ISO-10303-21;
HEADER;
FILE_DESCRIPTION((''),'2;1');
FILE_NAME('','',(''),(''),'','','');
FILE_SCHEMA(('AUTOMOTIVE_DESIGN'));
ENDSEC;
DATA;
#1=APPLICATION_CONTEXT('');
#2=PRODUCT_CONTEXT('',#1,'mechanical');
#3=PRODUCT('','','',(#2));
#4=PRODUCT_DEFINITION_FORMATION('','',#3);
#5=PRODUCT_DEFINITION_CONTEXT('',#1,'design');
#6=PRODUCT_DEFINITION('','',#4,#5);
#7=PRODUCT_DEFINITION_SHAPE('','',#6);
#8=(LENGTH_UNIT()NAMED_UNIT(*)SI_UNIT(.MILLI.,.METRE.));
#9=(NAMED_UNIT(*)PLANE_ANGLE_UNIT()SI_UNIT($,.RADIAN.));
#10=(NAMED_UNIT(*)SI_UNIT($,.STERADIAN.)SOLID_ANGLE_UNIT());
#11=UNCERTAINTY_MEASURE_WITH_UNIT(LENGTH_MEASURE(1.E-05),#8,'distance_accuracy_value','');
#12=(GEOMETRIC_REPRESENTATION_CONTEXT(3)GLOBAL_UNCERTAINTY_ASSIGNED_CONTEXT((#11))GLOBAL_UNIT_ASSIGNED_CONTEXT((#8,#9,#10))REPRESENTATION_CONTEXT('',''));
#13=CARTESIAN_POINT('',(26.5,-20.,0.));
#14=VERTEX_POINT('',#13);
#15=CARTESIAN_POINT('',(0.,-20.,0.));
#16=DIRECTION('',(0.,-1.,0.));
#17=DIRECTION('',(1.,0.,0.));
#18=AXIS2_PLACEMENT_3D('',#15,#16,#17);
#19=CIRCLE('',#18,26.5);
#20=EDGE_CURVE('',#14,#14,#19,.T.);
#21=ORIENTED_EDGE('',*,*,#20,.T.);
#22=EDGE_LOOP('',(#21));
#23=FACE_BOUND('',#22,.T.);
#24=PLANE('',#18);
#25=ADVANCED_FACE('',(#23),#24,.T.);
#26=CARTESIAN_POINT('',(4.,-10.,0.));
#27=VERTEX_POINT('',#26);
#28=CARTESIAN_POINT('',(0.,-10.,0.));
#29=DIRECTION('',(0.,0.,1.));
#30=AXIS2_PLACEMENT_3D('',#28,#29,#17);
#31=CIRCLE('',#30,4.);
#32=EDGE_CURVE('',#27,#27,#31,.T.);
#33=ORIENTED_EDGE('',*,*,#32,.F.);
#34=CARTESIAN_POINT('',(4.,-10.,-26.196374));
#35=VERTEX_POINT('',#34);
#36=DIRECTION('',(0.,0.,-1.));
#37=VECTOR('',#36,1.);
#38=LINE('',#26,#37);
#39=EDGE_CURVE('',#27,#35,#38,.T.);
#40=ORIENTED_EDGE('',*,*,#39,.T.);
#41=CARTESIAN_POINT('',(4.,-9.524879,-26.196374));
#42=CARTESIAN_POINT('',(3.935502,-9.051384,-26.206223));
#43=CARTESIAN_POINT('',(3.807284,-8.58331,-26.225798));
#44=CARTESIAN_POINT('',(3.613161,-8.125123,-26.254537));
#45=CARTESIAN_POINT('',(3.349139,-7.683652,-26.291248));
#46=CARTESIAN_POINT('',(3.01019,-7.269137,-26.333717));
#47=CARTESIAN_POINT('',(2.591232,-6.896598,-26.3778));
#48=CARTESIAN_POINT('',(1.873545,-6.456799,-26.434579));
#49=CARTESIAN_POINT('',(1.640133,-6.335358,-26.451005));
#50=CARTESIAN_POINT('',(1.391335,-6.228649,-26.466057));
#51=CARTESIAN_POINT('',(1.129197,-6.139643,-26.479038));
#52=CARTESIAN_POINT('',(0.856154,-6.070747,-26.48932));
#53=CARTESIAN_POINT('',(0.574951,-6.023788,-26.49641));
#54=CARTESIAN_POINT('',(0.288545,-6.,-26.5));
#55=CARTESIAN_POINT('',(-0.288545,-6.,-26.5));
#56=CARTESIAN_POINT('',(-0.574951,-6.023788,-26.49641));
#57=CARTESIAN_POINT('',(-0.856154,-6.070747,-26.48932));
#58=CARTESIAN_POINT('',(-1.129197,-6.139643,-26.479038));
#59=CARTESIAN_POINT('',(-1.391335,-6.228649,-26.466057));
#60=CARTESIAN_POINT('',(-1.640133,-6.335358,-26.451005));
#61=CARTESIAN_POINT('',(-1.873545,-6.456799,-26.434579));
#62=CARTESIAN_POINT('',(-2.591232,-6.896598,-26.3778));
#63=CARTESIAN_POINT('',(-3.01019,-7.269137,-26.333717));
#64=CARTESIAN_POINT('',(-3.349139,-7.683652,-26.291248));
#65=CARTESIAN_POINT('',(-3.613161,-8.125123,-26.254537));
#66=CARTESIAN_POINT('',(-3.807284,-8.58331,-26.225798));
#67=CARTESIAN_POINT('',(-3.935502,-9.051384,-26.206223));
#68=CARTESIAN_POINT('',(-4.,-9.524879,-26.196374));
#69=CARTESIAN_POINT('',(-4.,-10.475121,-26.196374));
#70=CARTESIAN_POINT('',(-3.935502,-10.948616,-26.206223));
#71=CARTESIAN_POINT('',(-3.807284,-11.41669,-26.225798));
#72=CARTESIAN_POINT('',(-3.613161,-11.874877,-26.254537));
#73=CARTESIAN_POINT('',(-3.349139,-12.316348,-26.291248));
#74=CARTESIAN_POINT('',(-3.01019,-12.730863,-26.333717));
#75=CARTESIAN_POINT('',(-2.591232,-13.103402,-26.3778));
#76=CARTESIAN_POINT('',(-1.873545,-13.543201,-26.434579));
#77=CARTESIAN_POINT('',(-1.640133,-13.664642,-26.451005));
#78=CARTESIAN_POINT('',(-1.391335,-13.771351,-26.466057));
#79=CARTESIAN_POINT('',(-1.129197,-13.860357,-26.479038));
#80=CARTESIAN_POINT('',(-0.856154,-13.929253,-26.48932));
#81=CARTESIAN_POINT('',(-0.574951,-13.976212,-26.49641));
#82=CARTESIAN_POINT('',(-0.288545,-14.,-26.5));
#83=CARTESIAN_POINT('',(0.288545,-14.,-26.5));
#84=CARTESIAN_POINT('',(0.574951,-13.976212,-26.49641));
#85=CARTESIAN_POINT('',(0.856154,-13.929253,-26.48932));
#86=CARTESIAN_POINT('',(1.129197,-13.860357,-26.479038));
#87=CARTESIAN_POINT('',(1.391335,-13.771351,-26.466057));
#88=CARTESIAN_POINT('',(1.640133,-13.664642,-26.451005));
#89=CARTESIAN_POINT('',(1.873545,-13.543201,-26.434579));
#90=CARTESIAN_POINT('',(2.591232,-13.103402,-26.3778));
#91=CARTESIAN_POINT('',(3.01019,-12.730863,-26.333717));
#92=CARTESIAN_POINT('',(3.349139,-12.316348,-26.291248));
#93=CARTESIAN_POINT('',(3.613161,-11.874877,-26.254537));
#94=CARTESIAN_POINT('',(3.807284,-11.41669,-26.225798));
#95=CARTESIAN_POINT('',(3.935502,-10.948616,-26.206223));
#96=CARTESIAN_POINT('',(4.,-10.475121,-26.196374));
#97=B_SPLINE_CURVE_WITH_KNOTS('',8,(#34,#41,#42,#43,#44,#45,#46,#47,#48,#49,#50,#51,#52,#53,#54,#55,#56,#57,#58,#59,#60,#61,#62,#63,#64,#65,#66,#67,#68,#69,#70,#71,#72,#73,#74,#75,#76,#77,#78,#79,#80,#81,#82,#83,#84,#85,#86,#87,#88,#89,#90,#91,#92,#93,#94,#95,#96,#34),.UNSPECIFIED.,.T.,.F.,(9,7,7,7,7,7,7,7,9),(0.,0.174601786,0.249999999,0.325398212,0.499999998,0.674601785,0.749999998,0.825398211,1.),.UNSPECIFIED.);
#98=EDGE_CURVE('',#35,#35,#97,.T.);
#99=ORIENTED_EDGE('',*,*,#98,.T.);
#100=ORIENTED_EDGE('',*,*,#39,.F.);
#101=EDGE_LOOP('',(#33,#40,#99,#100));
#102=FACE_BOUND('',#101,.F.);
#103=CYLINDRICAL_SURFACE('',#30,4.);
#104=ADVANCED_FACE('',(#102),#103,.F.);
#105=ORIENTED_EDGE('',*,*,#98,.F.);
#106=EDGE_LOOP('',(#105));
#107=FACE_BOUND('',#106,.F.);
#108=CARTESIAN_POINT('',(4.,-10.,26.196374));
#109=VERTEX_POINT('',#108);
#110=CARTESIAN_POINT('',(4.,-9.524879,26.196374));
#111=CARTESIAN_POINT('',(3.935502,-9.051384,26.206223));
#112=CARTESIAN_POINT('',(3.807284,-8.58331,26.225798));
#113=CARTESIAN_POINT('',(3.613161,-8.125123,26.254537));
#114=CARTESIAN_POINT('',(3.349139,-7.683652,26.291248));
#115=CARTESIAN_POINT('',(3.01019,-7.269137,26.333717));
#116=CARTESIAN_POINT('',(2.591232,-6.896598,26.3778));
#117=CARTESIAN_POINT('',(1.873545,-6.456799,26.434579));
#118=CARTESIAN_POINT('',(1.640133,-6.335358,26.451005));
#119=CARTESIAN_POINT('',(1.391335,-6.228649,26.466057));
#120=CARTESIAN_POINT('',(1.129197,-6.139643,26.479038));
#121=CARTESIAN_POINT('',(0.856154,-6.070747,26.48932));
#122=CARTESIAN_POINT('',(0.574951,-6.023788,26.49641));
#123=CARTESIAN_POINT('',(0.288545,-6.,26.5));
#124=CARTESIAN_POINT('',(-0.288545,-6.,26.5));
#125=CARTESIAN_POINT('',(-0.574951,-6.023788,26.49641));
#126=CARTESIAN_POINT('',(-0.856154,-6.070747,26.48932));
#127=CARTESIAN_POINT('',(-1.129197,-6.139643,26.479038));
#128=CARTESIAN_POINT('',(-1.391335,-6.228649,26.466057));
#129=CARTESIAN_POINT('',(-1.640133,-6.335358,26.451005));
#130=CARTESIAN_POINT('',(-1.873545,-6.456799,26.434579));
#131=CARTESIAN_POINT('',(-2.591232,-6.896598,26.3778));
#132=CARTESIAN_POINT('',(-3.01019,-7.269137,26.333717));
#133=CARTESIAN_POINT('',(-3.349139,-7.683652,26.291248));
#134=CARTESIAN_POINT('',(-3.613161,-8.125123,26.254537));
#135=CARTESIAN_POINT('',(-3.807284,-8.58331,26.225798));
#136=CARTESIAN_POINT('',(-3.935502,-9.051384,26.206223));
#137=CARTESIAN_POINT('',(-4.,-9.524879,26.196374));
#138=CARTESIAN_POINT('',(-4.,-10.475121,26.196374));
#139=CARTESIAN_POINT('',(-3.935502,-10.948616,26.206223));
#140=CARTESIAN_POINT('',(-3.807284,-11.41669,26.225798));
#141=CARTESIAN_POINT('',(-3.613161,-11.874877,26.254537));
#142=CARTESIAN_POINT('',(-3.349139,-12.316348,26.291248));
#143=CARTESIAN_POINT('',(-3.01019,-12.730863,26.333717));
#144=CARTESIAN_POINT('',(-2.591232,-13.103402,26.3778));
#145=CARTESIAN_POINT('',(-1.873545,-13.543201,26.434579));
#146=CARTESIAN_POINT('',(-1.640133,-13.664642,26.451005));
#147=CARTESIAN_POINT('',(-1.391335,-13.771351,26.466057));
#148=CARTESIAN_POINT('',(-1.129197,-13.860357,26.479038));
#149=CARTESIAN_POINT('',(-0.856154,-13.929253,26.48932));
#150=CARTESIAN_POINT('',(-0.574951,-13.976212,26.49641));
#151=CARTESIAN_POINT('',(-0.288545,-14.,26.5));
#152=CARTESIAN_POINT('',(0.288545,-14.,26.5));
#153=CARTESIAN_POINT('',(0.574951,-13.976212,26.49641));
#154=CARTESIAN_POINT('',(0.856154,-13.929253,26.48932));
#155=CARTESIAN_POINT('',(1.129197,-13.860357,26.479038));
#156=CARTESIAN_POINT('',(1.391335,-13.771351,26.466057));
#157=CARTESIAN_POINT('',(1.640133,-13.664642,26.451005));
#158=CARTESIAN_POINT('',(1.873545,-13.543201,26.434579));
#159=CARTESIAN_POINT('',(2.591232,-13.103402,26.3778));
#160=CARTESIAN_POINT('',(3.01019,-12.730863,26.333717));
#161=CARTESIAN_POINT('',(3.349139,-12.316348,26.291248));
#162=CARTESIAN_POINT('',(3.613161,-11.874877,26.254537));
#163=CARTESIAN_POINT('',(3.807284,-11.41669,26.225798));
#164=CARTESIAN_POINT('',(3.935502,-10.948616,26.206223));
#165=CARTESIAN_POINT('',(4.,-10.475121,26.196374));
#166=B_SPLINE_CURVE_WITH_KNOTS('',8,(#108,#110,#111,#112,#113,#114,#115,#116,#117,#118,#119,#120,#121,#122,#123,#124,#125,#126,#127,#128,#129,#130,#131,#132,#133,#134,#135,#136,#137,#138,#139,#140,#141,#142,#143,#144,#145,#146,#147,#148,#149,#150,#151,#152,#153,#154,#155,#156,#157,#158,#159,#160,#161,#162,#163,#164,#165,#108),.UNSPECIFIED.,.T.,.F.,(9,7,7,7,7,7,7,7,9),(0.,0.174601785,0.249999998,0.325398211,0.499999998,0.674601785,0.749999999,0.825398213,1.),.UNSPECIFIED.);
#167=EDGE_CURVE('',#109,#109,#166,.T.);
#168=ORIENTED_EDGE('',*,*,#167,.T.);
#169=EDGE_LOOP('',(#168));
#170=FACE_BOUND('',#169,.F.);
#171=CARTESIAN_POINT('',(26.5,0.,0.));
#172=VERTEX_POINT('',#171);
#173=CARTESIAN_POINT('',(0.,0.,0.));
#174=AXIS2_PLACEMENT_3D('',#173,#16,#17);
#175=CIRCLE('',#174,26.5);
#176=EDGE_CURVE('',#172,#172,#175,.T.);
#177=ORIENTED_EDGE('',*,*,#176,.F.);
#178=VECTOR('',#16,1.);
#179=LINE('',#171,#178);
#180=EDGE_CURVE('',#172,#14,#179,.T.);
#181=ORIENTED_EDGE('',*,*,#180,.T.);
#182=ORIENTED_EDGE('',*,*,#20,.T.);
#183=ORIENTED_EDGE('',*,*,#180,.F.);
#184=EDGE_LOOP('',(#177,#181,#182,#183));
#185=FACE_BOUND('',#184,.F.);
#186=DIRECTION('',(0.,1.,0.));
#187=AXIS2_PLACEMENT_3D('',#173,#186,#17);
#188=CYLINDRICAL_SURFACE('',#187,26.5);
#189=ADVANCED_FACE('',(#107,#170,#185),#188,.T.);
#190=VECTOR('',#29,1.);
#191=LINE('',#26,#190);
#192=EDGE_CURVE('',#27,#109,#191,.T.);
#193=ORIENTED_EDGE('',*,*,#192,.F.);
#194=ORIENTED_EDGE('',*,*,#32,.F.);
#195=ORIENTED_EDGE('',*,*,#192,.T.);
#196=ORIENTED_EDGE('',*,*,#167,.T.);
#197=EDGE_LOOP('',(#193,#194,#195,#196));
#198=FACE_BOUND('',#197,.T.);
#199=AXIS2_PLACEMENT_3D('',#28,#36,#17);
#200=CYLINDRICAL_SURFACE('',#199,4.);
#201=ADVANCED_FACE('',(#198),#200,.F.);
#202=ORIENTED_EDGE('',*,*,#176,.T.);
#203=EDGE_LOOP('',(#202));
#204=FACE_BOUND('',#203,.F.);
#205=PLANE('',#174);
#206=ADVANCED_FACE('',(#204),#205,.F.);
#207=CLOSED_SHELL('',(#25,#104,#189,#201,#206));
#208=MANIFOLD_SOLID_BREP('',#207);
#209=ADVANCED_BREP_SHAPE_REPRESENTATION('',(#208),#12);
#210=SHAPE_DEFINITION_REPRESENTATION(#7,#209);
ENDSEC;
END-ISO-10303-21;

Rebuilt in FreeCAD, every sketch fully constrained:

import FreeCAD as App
import Part
import Sketcher

V = App.Vector
Q = App.Units.Quantity

doc = App.newDocument("Part")
params = doc.addObject("Spreadsheet::Sheet", "Params")
for row, (alias, value) in enumerate([
    ("sketch1_diameter", "53 mm"),
    ("pad1_length", "20 mm"),
    ("sketch2_diameter", "8 mm"),
    ("sketch3_diameter", "8 mm"),
], start=1):
    params.set(f"A{row}", alias)
    params.set(f"B{row}", "=" + value)
    params.setAlias(f"B{row}", alias)

body = doc.addObject("PartDesign::Body", "Body")

# Sketch on XZ plane
sketch1 = body.newObject("Sketcher::SketchObject", "Sketch")
sketch1.AttachmentSupport = (doc.getObject("XZ_Plane"), [""])
sketch1.MapMode = "FlatFace"
sketch1.addGeometry(Part.Circle(V(0, 0, 0), V(0, 0, 1), 26), False)
sketch1.addConstraint([
    Sketcher.Constraint("Coincident", 0, 3, -1, 1),
    Sketcher.Constraint("Diameter", 0, Q("53 mm")),
])
sketch1.setExpression("Constraints[1]", "Params.sketch1_diameter")
pad1 = body.newObject("PartDesign::Pad", "Pad")
pad1.Profile = sketch1
pad1.setExpression("Length", "Params.pad1_length")

# Sketch on XY plane
sketch2 = body.newObject("Sketcher::SketchObject", "Sketch001")
sketch2.AttachmentSupport = (doc.getObject("XY_Plane"), [""])
sketch2.MapMode = "FlatFace"
sketch2.addGeometry(Part.Circle(V(0, -10, 0), V(0, 0, 1), 4), False)
sketch2.addConstraint([
    Sketcher.Constraint("PointOnObject", 0, 3, -2),
    Sketcher.Constraint("Diameter", 0, Q("8 mm")),
    Sketcher.Constraint("DistanceY", 0, 3, -1, 1, Q("10 mm")),
])
sketch2.setExpression("Constraints[1]", "Params.sketch2_diameter")
pocket1 = body.newObject("PartDesign::Pocket", "Pocket")
pocket1.Profile = sketch2
pocket1.Type = "ThroughAll"

# Sketch on XY plane
sketch3 = body.newObject("Sketcher::SketchObject", "Sketch002")
sketch3.AttachmentSupport = (doc.getObject("XY_Plane"), [""])
sketch3.MapMode = "FlatFace"
sketch3.addGeometry(Part.Circle(V(0, -10, 0), V(0, 0, 1), 4), False)
sketch3.addConstraint([
    Sketcher.Constraint("PointOnObject", 0, 3, -2),
    Sketcher.Constraint("Diameter", 0, Q("8 mm")),
    Sketcher.Constraint("DistanceY", 0, 3, -1, 1, Q("10 mm")),
])
sketch3.setExpression("Constraints[1]", "Params.sketch3_diameter")
pocket2 = body.newObject("PartDesign::Pocket", "Pocket001")
pocket2.Profile = sketch3
pocket2.Type = "ThroughAll"
pocket2.Reversed = True

doc.recompute()
